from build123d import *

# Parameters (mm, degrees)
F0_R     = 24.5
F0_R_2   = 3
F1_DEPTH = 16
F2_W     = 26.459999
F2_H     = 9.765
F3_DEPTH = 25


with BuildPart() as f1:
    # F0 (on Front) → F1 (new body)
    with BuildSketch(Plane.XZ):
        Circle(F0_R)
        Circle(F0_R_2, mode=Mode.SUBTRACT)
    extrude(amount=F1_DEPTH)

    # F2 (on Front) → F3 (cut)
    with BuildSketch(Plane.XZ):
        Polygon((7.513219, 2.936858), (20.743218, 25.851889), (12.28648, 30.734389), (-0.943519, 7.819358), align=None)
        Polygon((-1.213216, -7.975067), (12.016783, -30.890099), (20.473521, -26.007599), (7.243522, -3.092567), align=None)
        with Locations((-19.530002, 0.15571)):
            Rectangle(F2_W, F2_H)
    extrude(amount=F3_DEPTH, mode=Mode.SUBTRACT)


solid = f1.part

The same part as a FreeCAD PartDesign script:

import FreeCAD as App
import Part
import Sketcher
from FreeCAD import Vector
Q = App.Units.Quantity


def add_polygon(sketch, points):
    """Adds a closed chain of lines whose ends are joined by coincident constraints."""
    first, n = sketch.GeometryCount, len(points)
    for a, b in zip(points, points[1:] + points[:1]):
        sketch.addGeometry(Part.LineSegment(App.Vector(*a, 0), App.Vector(*b, 0)), False)
    for i in range(n):
        sketch.addConstraint(Sketcher.Constraint("Coincident", first + i, 2, first + (i + 1) % n, 1))

doc = App.newDocument("Part")
body = doc.addObject("PartDesign::Body", "Body")

# Sketch on XZ plane
sketch1 = doc.addObject("Sketcher::SketchObject", "Sketch")
body.addObject(sketch1)
sketch1.AttachmentSupport = (doc.XZ_Plane, [""])
sketch1.MapMode = "FlatFace"
sketch1.addGeometry([
    Part.Circle(Vector(0, 0, 0), Vector(0, 0, 1), 24.5),
    Part.Circle(Vector(0, 0, 0), Vector(0, 0, 1), 3),
], False)
sketch1.addConstraint([
    Sketcher.Constraint("Coincident", 0, 3, -1, 1),
    Sketcher.Constraint("Coincident", 1, 3, -1, 1),
    Sketcher.Constraint("Diameter", 0, Q("49 mm")),
    Sketcher.Constraint("Diameter", 1, Q("6 mm")),
])
pad1 = doc.addObject("PartDesign::Pad", "Pad")
body.addObject(pad1)
pad1.Profile = sketch1
pad1.Length = 16

# Sketch on XZ plane
sketch2 = doc.addObject("Sketcher::SketchObject", "Sketch001")
body.addObject(sketch2)
sketch2.AttachmentSupport = (doc.XZ_Plane, [""])
sketch2.MapMode = "FlatFace"
add_polygon(sketch2, [(8, 3), (21, 26), (12, 31), (-1, 8)])  # lines 0-3
add_polygon(sketch2, [(-1, -8), (12, -31), (20, -26), (7, -3)])  # lines 4-7
add_polygon(sketch2, [(-33, 5), (-33, -5), (-6, -5), (-6, 5)])  # lines 8-11
sketch2.addConstraint([
    Sketcher.Constraint("Vertical", 8),
    Sketcher.Constraint("Horizontal", 9),
    Sketcher.Constraint("Vertical", 10),
    Sketcher.Constraint("Horizontal", 11),
    Sketcher.Constraint("Perpendicular", 0, 1),
    Sketcher.Constraint("Perpendicular", 1, 2),
    Sketcher.Constraint("Perpendicular", 2, 3),
    Sketcher.Constraint("Perpendicular", 4, 5),
    Sketcher.Constraint("Perpendicular", 5, 6),
    Sketcher.Constraint("Perpendicular", 6, 7),
    Sketcher.Constraint("Equal", 2, 4),
    Sketcher.Constraint("Equal", 3, 5),
    Sketcher.Constraint("Angle", 0, Q("60.000001 deg")),
    Sketcher.Constraint("Angle", 4, Q("-60.000002 deg")),
    Sketcher.Constraint("DistanceX", 9, 1, 9, 2, Q("26.459999 mm")),
    Sketcher.Constraint("Distance", 0, Q("26.459998 mm")),
    Sketcher.Constraint("DistanceY", 8, 2, 8, 1, Q("9.765 mm")),
    Sketcher.Constraint("DistanceX", 8, 2, -1, 1, Q("32.760002 mm")),
    Sketcher.Constraint("Distance", 1, Q("9.765 mm")),
    Sketcher.Constraint("DistanceY", 4, 2, -1, 1, Q("30.890099 mm")),
    Sketcher.Constraint("DistanceY", -1, 1, 0, 2, Q("25.851889 mm")),
    Sketcher.Constraint("DistanceX", -1, 1, 1, 2, Q("12.28648 mm")),
    Sketcher.Constraint("DistanceX", -1, 1, 5, 2, Q("20.473521 mm")),
    Sketcher.Constraint("DistanceY", 8, 2, -1, 1, Q("4.72679 mm")),
])
pocket1 = doc.addObject("PartDesign::Pocket", "Pocket")
body.addObject(pocket1)
pocket1.Profile = sketch2
pocket1.Length = 25
pocket1.Reversed = True

doc.recompute()
